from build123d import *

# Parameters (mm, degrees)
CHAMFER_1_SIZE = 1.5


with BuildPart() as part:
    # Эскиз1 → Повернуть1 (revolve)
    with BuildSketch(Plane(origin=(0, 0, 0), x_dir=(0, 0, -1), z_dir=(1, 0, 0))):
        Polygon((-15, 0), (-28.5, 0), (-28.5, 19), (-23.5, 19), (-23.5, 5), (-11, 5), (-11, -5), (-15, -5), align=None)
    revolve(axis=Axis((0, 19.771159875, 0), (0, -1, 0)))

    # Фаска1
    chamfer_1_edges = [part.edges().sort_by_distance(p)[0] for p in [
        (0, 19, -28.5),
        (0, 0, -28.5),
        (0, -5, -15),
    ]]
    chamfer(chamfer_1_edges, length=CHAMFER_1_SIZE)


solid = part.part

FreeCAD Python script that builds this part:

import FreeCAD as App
import Part
import Sketcher

V = App.Vector
Q = App.Units.Quantity


def edges_at(feature, points):
    """Names of the edges that pass closest to the given points."""
    edges = feature.Shape.Edges
    near = lambda p: min(range(len(edges)), key=lambda i: edges[i].distToShape(Part.Vertex(*p))[0])
    return sorted({f"Edge{near(p) + 1}" for p in points})

doc = App.newDocument("Part")
body = doc.addObject("PartDesign::Body", "Body")

sketch1 = doc.addObject("Sketcher::SketchObject", "Sketch")
body.addObject(sketch1)
sketch1.AttachmentSupport = (doc.YZ_Plane, [""])
sketch1.MapMode = "FlatFace"
sketch1.addGeometry([
    Part.LineSegment(V(0, 28.5, 0), V(0, 15, 0)),
    Part.LineSegment(V(0, 15, 0), V(-5, 15, 0)),
    Part.LineSegment(V(-5, 15, 0), V(-5, 11, 0)),
    Part.LineSegment(V(-5, 11, 0), V(5, 11, 0)),
    Part.LineSegment(V(5, 11, 0), V(5, 23.5, 0)),
    Part.LineSegment(V(5, 23.5, 0), V(19, 23.5, 0)),
    Part.LineSegment(V(19, 23.5, 0), V(19, 28.5, 0)),
    Part.LineSegment(V(19, 28.5, 0), V(0, 28.5, 0)),
], False)
sketch1.addConstraint([
    Sketcher.Constraint("Coincident", 0, 2, 1, 1),
    Sketcher.Constraint("Coincident", 1, 2, 2, 1),
    Sketcher.Constraint("Coincident", 2, 2, 3, 1),
    Sketcher.Constraint("Coincident", 3, 2, 4, 1),
    Sketcher.Constraint("Coincident", 4, 2, 5, 1),
    Sketcher.Constraint("Coincident", 5, 2, 6, 1),
    Sketcher.Constraint("Coincident", 6, 2, 7, 1),
    Sketcher.Constraint("Coincident", 7, 2, 0, 1),
    Sketcher.Constraint("Vertical", 0),
    Sketcher.Constraint("Horizontal", 1),
    Sketcher.Constraint("Vertical", 2),
    Sketcher.Constraint("Horizontal", 3),
    Sketcher.Constraint("Vertical", 4),
    Sketcher.Constraint("Horizontal", 5),
    Sketcher.Constraint("Vertical", 6),
    Sketcher.Constraint("Horizontal", 7),
    Sketcher.Constraint("PointOnObject", 0, 2, -2),
    Sketcher.Constraint("Equal", 1, 6),
    Sketcher.Constraint("DistanceX", 1, 2, 1, 1, Q("5 mm")),
    Sketcher.Constraint("DistanceX", 3, 1, 3, 2, Q("10 mm")),
    Sketcher.Constraint("DistanceX", 5, 1, 5, 2, Q("14 mm")),
    Sketcher.Constraint("DistanceY", 2, 2, 2, 1, Q("4 mm")),
    Sketcher.Constraint("DistanceY", 0, 2, 0, 1, Q("13.5 mm")),
    Sketcher.Constraint("DistanceY", -1, 1, 0, 2, Q("15 mm")),
])
revolution = doc.addObject("PartDesign::Revolution", "Revolution")
body.addObject(revolution)
revolution.Profile = sketch1
revolution.ReferenceAxis = (sketch1, ["H_Axis"])
revolution.Angle = 360
doc.recompute()

chamfer = doc.addObject("PartDesign::Chamfer", "Chamfer")
body.addObject(chamfer)
chamfer.Base = (revolution, edges_at(revolution, [(0, 19, -28.5), (0, 0, -28.5), (0, -5, -15)]))
chamfer.Size = 1.5

doc.recompute()
